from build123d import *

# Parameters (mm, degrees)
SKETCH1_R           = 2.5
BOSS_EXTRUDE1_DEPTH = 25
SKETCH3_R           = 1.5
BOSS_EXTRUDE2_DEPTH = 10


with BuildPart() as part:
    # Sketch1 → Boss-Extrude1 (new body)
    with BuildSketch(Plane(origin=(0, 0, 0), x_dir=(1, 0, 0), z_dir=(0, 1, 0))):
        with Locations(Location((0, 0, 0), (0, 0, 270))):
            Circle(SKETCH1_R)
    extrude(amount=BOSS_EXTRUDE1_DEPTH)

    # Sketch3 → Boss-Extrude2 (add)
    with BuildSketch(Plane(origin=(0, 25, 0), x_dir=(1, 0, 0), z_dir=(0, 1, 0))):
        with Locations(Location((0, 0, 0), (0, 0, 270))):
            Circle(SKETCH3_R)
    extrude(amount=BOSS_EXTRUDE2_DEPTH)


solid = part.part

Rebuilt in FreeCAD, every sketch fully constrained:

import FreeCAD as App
import Part
import Sketcher

V = App.Vector

doc = App.newDocument("Part")
params = doc.addObject("Spreadsheet::Sheet", "Params")
for row, (alias, value) in enumerate([
    ("sketch1_diameter", "5 mm"),
    ("pad1_length", "25 mm"),
    ("sketch2_diameter", "3 mm"),
    ("pad2_length", "10 mm"),
], start=1):
    params.set(f"A{row}", alias)
    params.set(f"B{row}", "=" + value)
    params.setAlias(f"B{row}", alias)

body = doc.addObject("PartDesign::Body", "Body")

sketch1 = body.newObject("Sketcher::SketchObject", "Sketch")
sketch1.AttachmentSupport = (doc.getObject("XZ_Plane"), [""])
sketch1.MapMode = "FlatFace"
sketch1.addGeometry(Part.Circle(V(0, 0, 0), V(0, 0, 1), 2.5), False)
sketch1.addConstraint(Sketcher.Constraint("Coincident", 0, 3, -1, 1))
sketch1.addConstraint(Sketcher.Constraint("Diameter", 0, 5.0))
sketch1.setExpression("Constraints[1]", "Params.sketch1_diameter")
pad1 = body.newObject("PartDesign::Pad", "Pad")
pad1.Profile = sketch1
pad1.setExpression("Length", "Params.pad1_length")
pad1.Reversed = True

sketch2 = body.newObject("Sketcher::SketchObject", "Sketch001")
sketch2.AttachmentSupport = (doc.getObject("XZ_Plane"), [""])
sketch2.MapMode = "FlatFace"
sketch2.AttachmentOffset = App.Placement(V(0, 0, -25), App.Rotation())
sketch2.addGeometry(Part.Circle(V(0, 0, 0), V(0, 0, 1), 1.5), False)
sketch2.addConstraint(Sketcher.Constraint("Coincident", 0, 3, -1, 1))
sketch2.addConstraint(Sketcher.Constraint("Diameter", 0, 3.0))
sketch2.setExpression("Constraints[1]", "Params.sketch2_diameter")
pad2 = body.newObject("PartDesign::Pad", "Pad001")
pad2.Profile = sketch2
pad2.setExpression("Length", "Params.pad2_length")
pad2.Reversed = True

doc.recompute()
